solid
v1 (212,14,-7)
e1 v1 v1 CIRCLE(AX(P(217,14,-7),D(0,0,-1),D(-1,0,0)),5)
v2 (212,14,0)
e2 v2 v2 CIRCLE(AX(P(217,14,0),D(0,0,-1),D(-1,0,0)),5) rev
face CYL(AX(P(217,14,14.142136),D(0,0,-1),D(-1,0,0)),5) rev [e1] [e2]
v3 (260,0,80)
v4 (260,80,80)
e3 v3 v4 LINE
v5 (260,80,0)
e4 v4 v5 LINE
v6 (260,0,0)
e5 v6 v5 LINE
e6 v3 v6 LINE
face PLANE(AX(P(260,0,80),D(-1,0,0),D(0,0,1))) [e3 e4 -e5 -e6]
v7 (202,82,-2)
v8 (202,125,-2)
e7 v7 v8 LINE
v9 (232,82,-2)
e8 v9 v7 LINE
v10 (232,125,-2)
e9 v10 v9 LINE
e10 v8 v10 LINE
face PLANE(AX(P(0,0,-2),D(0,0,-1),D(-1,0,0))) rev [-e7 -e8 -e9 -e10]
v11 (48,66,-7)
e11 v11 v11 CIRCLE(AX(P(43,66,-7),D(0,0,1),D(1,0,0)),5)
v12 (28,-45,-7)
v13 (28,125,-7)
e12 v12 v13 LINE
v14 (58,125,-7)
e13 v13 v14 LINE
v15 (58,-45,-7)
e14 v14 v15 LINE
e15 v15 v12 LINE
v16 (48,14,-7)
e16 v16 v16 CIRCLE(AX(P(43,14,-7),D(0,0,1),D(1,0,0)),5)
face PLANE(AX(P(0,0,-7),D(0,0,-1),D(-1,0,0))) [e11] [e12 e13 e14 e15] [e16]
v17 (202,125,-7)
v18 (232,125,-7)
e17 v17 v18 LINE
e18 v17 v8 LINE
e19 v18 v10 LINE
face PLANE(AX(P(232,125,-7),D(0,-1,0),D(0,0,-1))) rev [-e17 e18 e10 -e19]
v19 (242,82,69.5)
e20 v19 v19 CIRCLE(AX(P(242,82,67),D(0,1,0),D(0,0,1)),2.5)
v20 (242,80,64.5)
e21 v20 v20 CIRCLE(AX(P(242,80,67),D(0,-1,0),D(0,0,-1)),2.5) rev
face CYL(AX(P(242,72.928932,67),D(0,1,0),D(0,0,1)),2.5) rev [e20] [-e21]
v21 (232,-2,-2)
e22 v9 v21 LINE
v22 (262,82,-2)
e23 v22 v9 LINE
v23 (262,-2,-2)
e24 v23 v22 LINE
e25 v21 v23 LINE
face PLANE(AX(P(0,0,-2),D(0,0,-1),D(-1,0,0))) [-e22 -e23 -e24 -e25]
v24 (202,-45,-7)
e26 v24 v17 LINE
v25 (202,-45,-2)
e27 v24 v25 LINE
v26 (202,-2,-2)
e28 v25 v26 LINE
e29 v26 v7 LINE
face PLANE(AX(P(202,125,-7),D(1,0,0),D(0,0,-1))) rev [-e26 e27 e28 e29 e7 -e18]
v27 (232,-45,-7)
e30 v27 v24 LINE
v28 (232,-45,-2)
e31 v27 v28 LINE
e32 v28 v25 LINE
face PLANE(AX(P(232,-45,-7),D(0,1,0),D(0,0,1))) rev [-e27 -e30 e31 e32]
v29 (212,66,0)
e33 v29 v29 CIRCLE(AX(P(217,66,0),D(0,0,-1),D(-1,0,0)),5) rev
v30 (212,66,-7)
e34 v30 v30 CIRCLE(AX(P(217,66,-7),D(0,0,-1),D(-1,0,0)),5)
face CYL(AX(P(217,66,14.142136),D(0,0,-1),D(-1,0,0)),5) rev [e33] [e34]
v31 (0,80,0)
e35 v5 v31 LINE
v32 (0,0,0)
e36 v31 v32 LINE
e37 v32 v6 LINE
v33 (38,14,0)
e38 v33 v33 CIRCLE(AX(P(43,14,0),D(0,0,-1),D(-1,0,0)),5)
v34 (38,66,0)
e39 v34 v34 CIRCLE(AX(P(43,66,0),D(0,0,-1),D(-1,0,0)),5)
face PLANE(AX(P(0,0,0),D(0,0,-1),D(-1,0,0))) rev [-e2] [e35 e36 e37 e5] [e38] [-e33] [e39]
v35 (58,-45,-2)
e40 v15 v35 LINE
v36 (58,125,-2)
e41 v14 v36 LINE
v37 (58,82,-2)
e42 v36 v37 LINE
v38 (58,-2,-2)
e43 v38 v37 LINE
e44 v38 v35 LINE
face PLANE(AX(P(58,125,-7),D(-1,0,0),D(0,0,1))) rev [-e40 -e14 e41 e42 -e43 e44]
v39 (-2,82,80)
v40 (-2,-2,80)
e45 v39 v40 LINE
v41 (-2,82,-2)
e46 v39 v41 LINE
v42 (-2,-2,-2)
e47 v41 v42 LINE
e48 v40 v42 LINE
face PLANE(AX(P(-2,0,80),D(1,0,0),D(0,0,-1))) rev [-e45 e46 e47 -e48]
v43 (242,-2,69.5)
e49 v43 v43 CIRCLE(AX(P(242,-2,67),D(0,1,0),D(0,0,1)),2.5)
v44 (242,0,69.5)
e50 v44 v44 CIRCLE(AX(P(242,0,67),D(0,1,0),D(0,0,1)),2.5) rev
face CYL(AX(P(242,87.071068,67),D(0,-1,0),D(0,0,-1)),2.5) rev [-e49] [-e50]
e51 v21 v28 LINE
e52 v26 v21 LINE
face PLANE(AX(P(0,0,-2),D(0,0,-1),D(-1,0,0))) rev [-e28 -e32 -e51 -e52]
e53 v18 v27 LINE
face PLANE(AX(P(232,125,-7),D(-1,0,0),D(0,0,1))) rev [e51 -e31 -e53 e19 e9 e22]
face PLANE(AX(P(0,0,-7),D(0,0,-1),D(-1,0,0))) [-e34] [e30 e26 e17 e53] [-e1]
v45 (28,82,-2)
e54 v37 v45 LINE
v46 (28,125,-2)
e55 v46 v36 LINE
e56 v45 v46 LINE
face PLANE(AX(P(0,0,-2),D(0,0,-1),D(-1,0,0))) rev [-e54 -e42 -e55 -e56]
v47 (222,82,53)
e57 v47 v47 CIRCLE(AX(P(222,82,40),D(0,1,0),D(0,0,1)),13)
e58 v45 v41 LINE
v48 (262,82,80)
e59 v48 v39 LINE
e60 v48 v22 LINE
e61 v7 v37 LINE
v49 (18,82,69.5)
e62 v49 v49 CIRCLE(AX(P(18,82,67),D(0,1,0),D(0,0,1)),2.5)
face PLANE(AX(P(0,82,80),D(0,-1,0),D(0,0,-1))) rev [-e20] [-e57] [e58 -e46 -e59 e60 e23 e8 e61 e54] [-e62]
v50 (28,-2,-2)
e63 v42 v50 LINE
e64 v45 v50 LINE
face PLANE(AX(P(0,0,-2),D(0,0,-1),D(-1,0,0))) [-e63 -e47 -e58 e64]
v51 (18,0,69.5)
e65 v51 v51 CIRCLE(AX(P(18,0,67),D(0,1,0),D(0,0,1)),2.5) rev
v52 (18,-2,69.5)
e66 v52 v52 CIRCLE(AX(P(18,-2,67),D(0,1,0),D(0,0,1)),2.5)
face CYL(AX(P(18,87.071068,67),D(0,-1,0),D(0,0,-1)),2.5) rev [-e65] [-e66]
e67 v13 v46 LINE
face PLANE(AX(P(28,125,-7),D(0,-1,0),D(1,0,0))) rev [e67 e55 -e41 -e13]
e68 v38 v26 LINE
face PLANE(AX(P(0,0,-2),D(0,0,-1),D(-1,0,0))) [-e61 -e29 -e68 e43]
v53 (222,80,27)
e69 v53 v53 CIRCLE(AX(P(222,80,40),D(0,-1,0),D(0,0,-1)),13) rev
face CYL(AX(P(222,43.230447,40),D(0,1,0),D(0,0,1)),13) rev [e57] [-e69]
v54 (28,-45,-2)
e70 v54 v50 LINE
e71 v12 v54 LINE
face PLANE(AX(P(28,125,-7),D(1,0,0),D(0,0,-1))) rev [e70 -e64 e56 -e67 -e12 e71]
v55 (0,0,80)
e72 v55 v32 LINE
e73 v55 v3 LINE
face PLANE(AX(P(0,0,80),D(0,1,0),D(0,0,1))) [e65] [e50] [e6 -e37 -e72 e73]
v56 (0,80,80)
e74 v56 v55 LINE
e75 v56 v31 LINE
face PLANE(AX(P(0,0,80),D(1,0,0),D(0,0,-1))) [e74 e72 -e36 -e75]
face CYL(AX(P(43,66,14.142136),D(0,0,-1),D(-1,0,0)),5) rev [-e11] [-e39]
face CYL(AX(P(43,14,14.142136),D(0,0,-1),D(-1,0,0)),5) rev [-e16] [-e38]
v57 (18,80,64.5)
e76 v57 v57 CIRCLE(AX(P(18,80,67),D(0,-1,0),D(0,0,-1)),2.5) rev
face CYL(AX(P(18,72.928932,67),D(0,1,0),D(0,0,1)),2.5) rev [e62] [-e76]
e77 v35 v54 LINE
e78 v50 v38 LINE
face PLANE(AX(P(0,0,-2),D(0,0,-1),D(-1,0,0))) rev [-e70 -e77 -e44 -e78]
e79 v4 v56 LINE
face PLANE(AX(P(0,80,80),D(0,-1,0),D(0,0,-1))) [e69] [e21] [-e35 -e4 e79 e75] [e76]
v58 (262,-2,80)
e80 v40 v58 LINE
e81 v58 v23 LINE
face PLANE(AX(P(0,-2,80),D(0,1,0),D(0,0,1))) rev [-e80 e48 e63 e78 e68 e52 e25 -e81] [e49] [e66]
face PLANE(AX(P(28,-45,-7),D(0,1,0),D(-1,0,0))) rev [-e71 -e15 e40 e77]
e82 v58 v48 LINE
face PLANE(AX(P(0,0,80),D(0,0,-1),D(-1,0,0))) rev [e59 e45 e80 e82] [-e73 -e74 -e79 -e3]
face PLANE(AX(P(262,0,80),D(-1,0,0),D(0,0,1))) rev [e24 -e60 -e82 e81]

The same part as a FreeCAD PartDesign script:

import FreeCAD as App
import Part
import Sketcher


def faces_at(feature, points):
    """Names of the faces that lie closest to the given points."""
    faces = feature.Shape.Faces
    near = lambda p: min(range(len(faces)), key=lambda i: faces[i].distToShape(Part.Vertex(*p))[0])
    return sorted({f"Face{near(p) + 1}" for p in points})


def add_polygon(sketch, points):
    """Adds a closed chain of lines whose ends are joined by coincident constraints."""
    first, n = sketch.GeometryCount, len(points)
    for a, b in zip(points, points[1:] + points[:1]):
        sketch.addGeometry(Part.LineSegment(App.Vector(*a, 0), App.Vector(*b, 0)), False)
    for i in range(n):
        sketch.addConstraint(Sketcher.Constraint("Coincident", first + i, 2, first + (i + 1) % n, 1))

doc = App.newDocument("Part")
params = doc.addObject("Spreadsheet::Sheet", "Params")
for row, (alias, value) in enumerate([
    ("sketch1_width", "260 mm"),
    ("sketch1_height", "80 mm"),
    ("pad1_length", "80 mm"),
    ("thickness_wall", "2 mm"),
    ("sketch2_width", "30 mm"),
    ("sketch2_height", "170 mm"),
    ("pad2_length", "5 mm"),
    ("sketch3_diameter", "10 mm"),
    ("pocket1_length", "7 mm"),
    ("sketch4_diameter", "26 mm"),
    ("pocket2_length", "2 mm"),
    ("sketch5_diameter", "5 mm"),
    ("pocket3_length", "82 mm"),
], start=1):
    params.set(f"A{row}", alias)
    params.set(f"B{row}", "=" + value)
    params.setAlias(f"B{row}", alias)

body = doc.addObject("PartDesign::Body", "Body")

sketch1 = body.newObject("Sketcher::SketchObject", "Sketch")
sketch1.AttachmentSupport = (doc.getObject("XY_Plane"), [""])
sketch1.MapMode = "FlatFace"
add_polygon(sketch1, [(0, 80), (0, 0), (260, 0), (260, 80)])
sketch1.addConstraint([
    Sketcher.Constraint("Vertical", 0),
    Sketcher.Constraint("Horizontal", 1),
    Sketcher.Constraint("Vertical", 2),
    Sketcher.Constraint("Horizontal", 3),
    Sketcher.Constraint("Coincident", 0, 2, -1, 1),
    Sketcher.Constraint("DistanceX", 1, 1, 1, 2, 260.0),
    Sketcher.Constraint("DistanceY", 0, 2, 0, 1, 80.0),
])
sketch1.setExpression("Constraints[9]", "Params.sketch1_width")
sketch1.setExpression("Constraints[10]", "Params.sketch1_height")
pad1 = body.newObject("PartDesign::Pad", "Pad")
pad1.Profile = sketch1
pad1.setExpression("Length", "Params.pad1_length")
doc.recompute()

thickness = body.newObject("PartDesign::Thickness", "Thickness")
thickness.Base = (pad1, faces_at(pad1, [(130, 40, 80)]))
thickness.setExpression("Value", "Params.thickness_wall")
thickness.Reversed = False
thickness.Join = "Intersection"

sketch2 = body.newObject("Sketcher::SketchObject", "Sketch001")
sketch2.AttachmentSupport = (doc.getObject("XY_Plane"), [""])
sketch2.MapMode = "FlatFace"
sketch2.AttachmentOffset = App.Placement(App.Vector(0, 0, -2), App.Rotation())
add_polygon(sketch2, [(232, 125), (232, -45), (202, -45), (202, 125)])
add_polygon(sketch2, [(58, 125), (58, -45), (28, -45), (28, 125)])
sketch2.addConstraint([
    Sketcher.Constraint("Vertical", 0),
    Sketcher.Constraint("Horizontal", 1),
    Sketcher.Constraint("Vertical", 2),
    Sketcher.Constraint("Horizontal", 3),
    Sketcher.Constraint("Vertical", 4),
    Sketcher.Constraint("Horizontal", 5),
    Sketcher.Constraint("Vertical", 6),
    Sketcher.Constraint("Horizontal", 7),
    Sketcher.Constraint("Horizontal", 1, 2, 4, 2),
    Sketcher.Constraint("Horizontal", 3, 2, 6, 2),
    Sketcher.Constraint("Equal", 3, 5),
    Sketcher.Constraint("DistanceX", 1, 2, 1, 1, 30.0),
    Sketcher.Constraint("DistanceY", 0, 2, 0, 1, 170.0),
    Sketcher.Constraint("DistanceX", -1, 1, 0, 2, 232.0),
    Sketcher.Constraint("DistanceY", 0, 2, -1, 1, 45.0),
    Sketcher.Constraint("DistanceX", -1, 1, 4, 2, 58.0),
])
sketch2.setExpression("Constraints[19]", "Params.sketch2_width")
sketch2.setExpression("Constraints[20]", "Params.sketch2_height")
pad2 = body.newObject("PartDesign::Pad", "Pad001")
pad2.Profile = sketch2
pad2.setExpression("Length", "Params.pad2_length")
pad2.Reversed = True

sketch3 = body.newObject("Sketcher::SketchObject", "Sketch002")
sketch3.AttachmentSupport = (doc.getObject("XY_Plane"), [""])
sketch3.MapMode = "FlatFace"
sketch3.AttachmentOffset = App.Placement(App.Vector(0, 0, -7), App.Rotation())
sketch3.addGeometry([
    Part.Circle(App.Vector(217, 66, 0), App.Vector(0, 0, 1), 5),
    Part.Circle(App.Vector(217, 14, 0), App.Vector(0, 0, 1), 5),
], False)
sketch3.addConstraint([
    Sketcher.Constraint("Equal", 0, 1),
    Sketcher.Constraint("Vertical", 0, 3, 1, 3),
    Sketcher.Constraint("Diameter", 0, 10.0),
    Sketcher.Constraint("DistanceX", -1, 1, 0, 3, 217.0),
    Sketcher.Constraint("DistanceY", -1, 1, 0, 3, 66.0),
    Sketcher.Constraint("DistanceY", -1, 1, 1, 3, 14.0),
])
sketch3.setExpression("Constraints[2]", "Params.sketch3_diameter")
pocket1 = body.newObject("PartDesign::Pocket", "Pocket")
pocket1.Profile = sketch3
pocket1.setExpression("Length", "Params.pocket1_length")
pocket1.Reversed = True
doc.recompute()

datumplane = body.newObject("PartDesign::Plane", "DatumPlane")
datumplane.AttachmentSupport = (doc.getObject("YZ_Plane"), [""])
datumplane.MapMode = "FlatFace"
datumplane.AttachmentOffset = App.Placement(App.Vector(0, 0, 130), App.Rotation())
mirrored = body.newObject("PartDesign::Mirrored", "Mirrored")
mirrored.Originals = [pocket1]
mirrored.MirrorPlane = (datumplane, [""])
body.Tip = mirrored

sketch4 = body.newObject("Sketcher::SketchObject", "Sketch003")
sketch4.AttachmentSupport = (doc.getObject("XZ_Plane"), [""])
sketch4.MapMode = "FlatFace"
sketch4.AttachmentOffset = App.Placement(App.Vector(0, 0, -82), App.Rotation())
sketch4.addGeometry(Part.Circle(App.Vector(222, 40, 0), App.Vector(0, 0, 1), 13), False)
sketch4.addConstraint([
    Sketcher.Constraint("Diameter", 0, 26.0),
    Sketcher.Constraint("DistanceX", -1, 1, 0, 3, 222.0),
    Sketcher.Constraint("DistanceY", -1, 1, 0, 3, 40.0),
])
sketch4.setExpression("Constraints[0]", "Params.sketch4_diameter")
pocket2 = body.newObject("PartDesign::Pocket", "Pocket001")
pocket2.Profile = sketch4
pocket2.setExpression("Length", "Params.pocket2_length")
pocket2.Reversed = True

sketch5 = body.newObject("Sketcher::SketchObject", "Sketch004")
sketch5.AttachmentSupport = (doc.getObject("XZ_Plane"), [""])
sketch5.MapMode = "FlatFace"
sketch5.AttachmentOffset = App.Placement(App.Vector(0, 0, -82), App.Rotation())
sketch5.addGeometry([
    Part.Circle(App.Vector(18, 67, 0), App.Vector(0, 0, 1), 2.5),
    Part.Circle(App.Vector(242, 67, 0), App.Vector(0, 0, 1), 2.5),
], False)
sketch5.addConstraint([
    Sketcher.Constraint("Equal", 0, 1),
    Sketcher.Constraint("Horizontal", 0, 3, 1, 3),
    Sketcher.Constraint("Diameter", 0, 5.0),
    Sketcher.Constraint("DistanceX", -1, 1, 0, 3, 18.0),
    Sketcher.Constraint("DistanceY", -1, 1, 0, 3, 67.0),
    Sketcher.Constraint("DistanceX", -1, 1, 1, 3, 242.0),
])
sketch5.setExpression("Constraints[2]", "Params.sketch5_diameter")
pocket3 = body.newObject("PartDesign::Pocket", "Pocket002")
pocket3.Profile = sketch5
pocket3.setExpression("Length", "Params.pocket3_length")
pocket3.Reversed = True
doc.recompute()

datumplane2 = body.newObject("PartDesign::Plane", "DatumPlane001")
datumplane2.AttachmentSupport = (doc.getObject("XZ_Plane"), [""])
datumplane2.MapMode = "FlatFace"
datumplane2.AttachmentOffset = App.Placement(App.Vector(0, 0, -40), App.Rotation())
mirrored2 = body.newObject("PartDesign::Mirrored", "Mirrored001")
mirrored2.Originals = [pocket3]
mirrored2.MirrorPlane = (datumplane2, [""])
body.Tip = mirrored2

doc.recompute()
